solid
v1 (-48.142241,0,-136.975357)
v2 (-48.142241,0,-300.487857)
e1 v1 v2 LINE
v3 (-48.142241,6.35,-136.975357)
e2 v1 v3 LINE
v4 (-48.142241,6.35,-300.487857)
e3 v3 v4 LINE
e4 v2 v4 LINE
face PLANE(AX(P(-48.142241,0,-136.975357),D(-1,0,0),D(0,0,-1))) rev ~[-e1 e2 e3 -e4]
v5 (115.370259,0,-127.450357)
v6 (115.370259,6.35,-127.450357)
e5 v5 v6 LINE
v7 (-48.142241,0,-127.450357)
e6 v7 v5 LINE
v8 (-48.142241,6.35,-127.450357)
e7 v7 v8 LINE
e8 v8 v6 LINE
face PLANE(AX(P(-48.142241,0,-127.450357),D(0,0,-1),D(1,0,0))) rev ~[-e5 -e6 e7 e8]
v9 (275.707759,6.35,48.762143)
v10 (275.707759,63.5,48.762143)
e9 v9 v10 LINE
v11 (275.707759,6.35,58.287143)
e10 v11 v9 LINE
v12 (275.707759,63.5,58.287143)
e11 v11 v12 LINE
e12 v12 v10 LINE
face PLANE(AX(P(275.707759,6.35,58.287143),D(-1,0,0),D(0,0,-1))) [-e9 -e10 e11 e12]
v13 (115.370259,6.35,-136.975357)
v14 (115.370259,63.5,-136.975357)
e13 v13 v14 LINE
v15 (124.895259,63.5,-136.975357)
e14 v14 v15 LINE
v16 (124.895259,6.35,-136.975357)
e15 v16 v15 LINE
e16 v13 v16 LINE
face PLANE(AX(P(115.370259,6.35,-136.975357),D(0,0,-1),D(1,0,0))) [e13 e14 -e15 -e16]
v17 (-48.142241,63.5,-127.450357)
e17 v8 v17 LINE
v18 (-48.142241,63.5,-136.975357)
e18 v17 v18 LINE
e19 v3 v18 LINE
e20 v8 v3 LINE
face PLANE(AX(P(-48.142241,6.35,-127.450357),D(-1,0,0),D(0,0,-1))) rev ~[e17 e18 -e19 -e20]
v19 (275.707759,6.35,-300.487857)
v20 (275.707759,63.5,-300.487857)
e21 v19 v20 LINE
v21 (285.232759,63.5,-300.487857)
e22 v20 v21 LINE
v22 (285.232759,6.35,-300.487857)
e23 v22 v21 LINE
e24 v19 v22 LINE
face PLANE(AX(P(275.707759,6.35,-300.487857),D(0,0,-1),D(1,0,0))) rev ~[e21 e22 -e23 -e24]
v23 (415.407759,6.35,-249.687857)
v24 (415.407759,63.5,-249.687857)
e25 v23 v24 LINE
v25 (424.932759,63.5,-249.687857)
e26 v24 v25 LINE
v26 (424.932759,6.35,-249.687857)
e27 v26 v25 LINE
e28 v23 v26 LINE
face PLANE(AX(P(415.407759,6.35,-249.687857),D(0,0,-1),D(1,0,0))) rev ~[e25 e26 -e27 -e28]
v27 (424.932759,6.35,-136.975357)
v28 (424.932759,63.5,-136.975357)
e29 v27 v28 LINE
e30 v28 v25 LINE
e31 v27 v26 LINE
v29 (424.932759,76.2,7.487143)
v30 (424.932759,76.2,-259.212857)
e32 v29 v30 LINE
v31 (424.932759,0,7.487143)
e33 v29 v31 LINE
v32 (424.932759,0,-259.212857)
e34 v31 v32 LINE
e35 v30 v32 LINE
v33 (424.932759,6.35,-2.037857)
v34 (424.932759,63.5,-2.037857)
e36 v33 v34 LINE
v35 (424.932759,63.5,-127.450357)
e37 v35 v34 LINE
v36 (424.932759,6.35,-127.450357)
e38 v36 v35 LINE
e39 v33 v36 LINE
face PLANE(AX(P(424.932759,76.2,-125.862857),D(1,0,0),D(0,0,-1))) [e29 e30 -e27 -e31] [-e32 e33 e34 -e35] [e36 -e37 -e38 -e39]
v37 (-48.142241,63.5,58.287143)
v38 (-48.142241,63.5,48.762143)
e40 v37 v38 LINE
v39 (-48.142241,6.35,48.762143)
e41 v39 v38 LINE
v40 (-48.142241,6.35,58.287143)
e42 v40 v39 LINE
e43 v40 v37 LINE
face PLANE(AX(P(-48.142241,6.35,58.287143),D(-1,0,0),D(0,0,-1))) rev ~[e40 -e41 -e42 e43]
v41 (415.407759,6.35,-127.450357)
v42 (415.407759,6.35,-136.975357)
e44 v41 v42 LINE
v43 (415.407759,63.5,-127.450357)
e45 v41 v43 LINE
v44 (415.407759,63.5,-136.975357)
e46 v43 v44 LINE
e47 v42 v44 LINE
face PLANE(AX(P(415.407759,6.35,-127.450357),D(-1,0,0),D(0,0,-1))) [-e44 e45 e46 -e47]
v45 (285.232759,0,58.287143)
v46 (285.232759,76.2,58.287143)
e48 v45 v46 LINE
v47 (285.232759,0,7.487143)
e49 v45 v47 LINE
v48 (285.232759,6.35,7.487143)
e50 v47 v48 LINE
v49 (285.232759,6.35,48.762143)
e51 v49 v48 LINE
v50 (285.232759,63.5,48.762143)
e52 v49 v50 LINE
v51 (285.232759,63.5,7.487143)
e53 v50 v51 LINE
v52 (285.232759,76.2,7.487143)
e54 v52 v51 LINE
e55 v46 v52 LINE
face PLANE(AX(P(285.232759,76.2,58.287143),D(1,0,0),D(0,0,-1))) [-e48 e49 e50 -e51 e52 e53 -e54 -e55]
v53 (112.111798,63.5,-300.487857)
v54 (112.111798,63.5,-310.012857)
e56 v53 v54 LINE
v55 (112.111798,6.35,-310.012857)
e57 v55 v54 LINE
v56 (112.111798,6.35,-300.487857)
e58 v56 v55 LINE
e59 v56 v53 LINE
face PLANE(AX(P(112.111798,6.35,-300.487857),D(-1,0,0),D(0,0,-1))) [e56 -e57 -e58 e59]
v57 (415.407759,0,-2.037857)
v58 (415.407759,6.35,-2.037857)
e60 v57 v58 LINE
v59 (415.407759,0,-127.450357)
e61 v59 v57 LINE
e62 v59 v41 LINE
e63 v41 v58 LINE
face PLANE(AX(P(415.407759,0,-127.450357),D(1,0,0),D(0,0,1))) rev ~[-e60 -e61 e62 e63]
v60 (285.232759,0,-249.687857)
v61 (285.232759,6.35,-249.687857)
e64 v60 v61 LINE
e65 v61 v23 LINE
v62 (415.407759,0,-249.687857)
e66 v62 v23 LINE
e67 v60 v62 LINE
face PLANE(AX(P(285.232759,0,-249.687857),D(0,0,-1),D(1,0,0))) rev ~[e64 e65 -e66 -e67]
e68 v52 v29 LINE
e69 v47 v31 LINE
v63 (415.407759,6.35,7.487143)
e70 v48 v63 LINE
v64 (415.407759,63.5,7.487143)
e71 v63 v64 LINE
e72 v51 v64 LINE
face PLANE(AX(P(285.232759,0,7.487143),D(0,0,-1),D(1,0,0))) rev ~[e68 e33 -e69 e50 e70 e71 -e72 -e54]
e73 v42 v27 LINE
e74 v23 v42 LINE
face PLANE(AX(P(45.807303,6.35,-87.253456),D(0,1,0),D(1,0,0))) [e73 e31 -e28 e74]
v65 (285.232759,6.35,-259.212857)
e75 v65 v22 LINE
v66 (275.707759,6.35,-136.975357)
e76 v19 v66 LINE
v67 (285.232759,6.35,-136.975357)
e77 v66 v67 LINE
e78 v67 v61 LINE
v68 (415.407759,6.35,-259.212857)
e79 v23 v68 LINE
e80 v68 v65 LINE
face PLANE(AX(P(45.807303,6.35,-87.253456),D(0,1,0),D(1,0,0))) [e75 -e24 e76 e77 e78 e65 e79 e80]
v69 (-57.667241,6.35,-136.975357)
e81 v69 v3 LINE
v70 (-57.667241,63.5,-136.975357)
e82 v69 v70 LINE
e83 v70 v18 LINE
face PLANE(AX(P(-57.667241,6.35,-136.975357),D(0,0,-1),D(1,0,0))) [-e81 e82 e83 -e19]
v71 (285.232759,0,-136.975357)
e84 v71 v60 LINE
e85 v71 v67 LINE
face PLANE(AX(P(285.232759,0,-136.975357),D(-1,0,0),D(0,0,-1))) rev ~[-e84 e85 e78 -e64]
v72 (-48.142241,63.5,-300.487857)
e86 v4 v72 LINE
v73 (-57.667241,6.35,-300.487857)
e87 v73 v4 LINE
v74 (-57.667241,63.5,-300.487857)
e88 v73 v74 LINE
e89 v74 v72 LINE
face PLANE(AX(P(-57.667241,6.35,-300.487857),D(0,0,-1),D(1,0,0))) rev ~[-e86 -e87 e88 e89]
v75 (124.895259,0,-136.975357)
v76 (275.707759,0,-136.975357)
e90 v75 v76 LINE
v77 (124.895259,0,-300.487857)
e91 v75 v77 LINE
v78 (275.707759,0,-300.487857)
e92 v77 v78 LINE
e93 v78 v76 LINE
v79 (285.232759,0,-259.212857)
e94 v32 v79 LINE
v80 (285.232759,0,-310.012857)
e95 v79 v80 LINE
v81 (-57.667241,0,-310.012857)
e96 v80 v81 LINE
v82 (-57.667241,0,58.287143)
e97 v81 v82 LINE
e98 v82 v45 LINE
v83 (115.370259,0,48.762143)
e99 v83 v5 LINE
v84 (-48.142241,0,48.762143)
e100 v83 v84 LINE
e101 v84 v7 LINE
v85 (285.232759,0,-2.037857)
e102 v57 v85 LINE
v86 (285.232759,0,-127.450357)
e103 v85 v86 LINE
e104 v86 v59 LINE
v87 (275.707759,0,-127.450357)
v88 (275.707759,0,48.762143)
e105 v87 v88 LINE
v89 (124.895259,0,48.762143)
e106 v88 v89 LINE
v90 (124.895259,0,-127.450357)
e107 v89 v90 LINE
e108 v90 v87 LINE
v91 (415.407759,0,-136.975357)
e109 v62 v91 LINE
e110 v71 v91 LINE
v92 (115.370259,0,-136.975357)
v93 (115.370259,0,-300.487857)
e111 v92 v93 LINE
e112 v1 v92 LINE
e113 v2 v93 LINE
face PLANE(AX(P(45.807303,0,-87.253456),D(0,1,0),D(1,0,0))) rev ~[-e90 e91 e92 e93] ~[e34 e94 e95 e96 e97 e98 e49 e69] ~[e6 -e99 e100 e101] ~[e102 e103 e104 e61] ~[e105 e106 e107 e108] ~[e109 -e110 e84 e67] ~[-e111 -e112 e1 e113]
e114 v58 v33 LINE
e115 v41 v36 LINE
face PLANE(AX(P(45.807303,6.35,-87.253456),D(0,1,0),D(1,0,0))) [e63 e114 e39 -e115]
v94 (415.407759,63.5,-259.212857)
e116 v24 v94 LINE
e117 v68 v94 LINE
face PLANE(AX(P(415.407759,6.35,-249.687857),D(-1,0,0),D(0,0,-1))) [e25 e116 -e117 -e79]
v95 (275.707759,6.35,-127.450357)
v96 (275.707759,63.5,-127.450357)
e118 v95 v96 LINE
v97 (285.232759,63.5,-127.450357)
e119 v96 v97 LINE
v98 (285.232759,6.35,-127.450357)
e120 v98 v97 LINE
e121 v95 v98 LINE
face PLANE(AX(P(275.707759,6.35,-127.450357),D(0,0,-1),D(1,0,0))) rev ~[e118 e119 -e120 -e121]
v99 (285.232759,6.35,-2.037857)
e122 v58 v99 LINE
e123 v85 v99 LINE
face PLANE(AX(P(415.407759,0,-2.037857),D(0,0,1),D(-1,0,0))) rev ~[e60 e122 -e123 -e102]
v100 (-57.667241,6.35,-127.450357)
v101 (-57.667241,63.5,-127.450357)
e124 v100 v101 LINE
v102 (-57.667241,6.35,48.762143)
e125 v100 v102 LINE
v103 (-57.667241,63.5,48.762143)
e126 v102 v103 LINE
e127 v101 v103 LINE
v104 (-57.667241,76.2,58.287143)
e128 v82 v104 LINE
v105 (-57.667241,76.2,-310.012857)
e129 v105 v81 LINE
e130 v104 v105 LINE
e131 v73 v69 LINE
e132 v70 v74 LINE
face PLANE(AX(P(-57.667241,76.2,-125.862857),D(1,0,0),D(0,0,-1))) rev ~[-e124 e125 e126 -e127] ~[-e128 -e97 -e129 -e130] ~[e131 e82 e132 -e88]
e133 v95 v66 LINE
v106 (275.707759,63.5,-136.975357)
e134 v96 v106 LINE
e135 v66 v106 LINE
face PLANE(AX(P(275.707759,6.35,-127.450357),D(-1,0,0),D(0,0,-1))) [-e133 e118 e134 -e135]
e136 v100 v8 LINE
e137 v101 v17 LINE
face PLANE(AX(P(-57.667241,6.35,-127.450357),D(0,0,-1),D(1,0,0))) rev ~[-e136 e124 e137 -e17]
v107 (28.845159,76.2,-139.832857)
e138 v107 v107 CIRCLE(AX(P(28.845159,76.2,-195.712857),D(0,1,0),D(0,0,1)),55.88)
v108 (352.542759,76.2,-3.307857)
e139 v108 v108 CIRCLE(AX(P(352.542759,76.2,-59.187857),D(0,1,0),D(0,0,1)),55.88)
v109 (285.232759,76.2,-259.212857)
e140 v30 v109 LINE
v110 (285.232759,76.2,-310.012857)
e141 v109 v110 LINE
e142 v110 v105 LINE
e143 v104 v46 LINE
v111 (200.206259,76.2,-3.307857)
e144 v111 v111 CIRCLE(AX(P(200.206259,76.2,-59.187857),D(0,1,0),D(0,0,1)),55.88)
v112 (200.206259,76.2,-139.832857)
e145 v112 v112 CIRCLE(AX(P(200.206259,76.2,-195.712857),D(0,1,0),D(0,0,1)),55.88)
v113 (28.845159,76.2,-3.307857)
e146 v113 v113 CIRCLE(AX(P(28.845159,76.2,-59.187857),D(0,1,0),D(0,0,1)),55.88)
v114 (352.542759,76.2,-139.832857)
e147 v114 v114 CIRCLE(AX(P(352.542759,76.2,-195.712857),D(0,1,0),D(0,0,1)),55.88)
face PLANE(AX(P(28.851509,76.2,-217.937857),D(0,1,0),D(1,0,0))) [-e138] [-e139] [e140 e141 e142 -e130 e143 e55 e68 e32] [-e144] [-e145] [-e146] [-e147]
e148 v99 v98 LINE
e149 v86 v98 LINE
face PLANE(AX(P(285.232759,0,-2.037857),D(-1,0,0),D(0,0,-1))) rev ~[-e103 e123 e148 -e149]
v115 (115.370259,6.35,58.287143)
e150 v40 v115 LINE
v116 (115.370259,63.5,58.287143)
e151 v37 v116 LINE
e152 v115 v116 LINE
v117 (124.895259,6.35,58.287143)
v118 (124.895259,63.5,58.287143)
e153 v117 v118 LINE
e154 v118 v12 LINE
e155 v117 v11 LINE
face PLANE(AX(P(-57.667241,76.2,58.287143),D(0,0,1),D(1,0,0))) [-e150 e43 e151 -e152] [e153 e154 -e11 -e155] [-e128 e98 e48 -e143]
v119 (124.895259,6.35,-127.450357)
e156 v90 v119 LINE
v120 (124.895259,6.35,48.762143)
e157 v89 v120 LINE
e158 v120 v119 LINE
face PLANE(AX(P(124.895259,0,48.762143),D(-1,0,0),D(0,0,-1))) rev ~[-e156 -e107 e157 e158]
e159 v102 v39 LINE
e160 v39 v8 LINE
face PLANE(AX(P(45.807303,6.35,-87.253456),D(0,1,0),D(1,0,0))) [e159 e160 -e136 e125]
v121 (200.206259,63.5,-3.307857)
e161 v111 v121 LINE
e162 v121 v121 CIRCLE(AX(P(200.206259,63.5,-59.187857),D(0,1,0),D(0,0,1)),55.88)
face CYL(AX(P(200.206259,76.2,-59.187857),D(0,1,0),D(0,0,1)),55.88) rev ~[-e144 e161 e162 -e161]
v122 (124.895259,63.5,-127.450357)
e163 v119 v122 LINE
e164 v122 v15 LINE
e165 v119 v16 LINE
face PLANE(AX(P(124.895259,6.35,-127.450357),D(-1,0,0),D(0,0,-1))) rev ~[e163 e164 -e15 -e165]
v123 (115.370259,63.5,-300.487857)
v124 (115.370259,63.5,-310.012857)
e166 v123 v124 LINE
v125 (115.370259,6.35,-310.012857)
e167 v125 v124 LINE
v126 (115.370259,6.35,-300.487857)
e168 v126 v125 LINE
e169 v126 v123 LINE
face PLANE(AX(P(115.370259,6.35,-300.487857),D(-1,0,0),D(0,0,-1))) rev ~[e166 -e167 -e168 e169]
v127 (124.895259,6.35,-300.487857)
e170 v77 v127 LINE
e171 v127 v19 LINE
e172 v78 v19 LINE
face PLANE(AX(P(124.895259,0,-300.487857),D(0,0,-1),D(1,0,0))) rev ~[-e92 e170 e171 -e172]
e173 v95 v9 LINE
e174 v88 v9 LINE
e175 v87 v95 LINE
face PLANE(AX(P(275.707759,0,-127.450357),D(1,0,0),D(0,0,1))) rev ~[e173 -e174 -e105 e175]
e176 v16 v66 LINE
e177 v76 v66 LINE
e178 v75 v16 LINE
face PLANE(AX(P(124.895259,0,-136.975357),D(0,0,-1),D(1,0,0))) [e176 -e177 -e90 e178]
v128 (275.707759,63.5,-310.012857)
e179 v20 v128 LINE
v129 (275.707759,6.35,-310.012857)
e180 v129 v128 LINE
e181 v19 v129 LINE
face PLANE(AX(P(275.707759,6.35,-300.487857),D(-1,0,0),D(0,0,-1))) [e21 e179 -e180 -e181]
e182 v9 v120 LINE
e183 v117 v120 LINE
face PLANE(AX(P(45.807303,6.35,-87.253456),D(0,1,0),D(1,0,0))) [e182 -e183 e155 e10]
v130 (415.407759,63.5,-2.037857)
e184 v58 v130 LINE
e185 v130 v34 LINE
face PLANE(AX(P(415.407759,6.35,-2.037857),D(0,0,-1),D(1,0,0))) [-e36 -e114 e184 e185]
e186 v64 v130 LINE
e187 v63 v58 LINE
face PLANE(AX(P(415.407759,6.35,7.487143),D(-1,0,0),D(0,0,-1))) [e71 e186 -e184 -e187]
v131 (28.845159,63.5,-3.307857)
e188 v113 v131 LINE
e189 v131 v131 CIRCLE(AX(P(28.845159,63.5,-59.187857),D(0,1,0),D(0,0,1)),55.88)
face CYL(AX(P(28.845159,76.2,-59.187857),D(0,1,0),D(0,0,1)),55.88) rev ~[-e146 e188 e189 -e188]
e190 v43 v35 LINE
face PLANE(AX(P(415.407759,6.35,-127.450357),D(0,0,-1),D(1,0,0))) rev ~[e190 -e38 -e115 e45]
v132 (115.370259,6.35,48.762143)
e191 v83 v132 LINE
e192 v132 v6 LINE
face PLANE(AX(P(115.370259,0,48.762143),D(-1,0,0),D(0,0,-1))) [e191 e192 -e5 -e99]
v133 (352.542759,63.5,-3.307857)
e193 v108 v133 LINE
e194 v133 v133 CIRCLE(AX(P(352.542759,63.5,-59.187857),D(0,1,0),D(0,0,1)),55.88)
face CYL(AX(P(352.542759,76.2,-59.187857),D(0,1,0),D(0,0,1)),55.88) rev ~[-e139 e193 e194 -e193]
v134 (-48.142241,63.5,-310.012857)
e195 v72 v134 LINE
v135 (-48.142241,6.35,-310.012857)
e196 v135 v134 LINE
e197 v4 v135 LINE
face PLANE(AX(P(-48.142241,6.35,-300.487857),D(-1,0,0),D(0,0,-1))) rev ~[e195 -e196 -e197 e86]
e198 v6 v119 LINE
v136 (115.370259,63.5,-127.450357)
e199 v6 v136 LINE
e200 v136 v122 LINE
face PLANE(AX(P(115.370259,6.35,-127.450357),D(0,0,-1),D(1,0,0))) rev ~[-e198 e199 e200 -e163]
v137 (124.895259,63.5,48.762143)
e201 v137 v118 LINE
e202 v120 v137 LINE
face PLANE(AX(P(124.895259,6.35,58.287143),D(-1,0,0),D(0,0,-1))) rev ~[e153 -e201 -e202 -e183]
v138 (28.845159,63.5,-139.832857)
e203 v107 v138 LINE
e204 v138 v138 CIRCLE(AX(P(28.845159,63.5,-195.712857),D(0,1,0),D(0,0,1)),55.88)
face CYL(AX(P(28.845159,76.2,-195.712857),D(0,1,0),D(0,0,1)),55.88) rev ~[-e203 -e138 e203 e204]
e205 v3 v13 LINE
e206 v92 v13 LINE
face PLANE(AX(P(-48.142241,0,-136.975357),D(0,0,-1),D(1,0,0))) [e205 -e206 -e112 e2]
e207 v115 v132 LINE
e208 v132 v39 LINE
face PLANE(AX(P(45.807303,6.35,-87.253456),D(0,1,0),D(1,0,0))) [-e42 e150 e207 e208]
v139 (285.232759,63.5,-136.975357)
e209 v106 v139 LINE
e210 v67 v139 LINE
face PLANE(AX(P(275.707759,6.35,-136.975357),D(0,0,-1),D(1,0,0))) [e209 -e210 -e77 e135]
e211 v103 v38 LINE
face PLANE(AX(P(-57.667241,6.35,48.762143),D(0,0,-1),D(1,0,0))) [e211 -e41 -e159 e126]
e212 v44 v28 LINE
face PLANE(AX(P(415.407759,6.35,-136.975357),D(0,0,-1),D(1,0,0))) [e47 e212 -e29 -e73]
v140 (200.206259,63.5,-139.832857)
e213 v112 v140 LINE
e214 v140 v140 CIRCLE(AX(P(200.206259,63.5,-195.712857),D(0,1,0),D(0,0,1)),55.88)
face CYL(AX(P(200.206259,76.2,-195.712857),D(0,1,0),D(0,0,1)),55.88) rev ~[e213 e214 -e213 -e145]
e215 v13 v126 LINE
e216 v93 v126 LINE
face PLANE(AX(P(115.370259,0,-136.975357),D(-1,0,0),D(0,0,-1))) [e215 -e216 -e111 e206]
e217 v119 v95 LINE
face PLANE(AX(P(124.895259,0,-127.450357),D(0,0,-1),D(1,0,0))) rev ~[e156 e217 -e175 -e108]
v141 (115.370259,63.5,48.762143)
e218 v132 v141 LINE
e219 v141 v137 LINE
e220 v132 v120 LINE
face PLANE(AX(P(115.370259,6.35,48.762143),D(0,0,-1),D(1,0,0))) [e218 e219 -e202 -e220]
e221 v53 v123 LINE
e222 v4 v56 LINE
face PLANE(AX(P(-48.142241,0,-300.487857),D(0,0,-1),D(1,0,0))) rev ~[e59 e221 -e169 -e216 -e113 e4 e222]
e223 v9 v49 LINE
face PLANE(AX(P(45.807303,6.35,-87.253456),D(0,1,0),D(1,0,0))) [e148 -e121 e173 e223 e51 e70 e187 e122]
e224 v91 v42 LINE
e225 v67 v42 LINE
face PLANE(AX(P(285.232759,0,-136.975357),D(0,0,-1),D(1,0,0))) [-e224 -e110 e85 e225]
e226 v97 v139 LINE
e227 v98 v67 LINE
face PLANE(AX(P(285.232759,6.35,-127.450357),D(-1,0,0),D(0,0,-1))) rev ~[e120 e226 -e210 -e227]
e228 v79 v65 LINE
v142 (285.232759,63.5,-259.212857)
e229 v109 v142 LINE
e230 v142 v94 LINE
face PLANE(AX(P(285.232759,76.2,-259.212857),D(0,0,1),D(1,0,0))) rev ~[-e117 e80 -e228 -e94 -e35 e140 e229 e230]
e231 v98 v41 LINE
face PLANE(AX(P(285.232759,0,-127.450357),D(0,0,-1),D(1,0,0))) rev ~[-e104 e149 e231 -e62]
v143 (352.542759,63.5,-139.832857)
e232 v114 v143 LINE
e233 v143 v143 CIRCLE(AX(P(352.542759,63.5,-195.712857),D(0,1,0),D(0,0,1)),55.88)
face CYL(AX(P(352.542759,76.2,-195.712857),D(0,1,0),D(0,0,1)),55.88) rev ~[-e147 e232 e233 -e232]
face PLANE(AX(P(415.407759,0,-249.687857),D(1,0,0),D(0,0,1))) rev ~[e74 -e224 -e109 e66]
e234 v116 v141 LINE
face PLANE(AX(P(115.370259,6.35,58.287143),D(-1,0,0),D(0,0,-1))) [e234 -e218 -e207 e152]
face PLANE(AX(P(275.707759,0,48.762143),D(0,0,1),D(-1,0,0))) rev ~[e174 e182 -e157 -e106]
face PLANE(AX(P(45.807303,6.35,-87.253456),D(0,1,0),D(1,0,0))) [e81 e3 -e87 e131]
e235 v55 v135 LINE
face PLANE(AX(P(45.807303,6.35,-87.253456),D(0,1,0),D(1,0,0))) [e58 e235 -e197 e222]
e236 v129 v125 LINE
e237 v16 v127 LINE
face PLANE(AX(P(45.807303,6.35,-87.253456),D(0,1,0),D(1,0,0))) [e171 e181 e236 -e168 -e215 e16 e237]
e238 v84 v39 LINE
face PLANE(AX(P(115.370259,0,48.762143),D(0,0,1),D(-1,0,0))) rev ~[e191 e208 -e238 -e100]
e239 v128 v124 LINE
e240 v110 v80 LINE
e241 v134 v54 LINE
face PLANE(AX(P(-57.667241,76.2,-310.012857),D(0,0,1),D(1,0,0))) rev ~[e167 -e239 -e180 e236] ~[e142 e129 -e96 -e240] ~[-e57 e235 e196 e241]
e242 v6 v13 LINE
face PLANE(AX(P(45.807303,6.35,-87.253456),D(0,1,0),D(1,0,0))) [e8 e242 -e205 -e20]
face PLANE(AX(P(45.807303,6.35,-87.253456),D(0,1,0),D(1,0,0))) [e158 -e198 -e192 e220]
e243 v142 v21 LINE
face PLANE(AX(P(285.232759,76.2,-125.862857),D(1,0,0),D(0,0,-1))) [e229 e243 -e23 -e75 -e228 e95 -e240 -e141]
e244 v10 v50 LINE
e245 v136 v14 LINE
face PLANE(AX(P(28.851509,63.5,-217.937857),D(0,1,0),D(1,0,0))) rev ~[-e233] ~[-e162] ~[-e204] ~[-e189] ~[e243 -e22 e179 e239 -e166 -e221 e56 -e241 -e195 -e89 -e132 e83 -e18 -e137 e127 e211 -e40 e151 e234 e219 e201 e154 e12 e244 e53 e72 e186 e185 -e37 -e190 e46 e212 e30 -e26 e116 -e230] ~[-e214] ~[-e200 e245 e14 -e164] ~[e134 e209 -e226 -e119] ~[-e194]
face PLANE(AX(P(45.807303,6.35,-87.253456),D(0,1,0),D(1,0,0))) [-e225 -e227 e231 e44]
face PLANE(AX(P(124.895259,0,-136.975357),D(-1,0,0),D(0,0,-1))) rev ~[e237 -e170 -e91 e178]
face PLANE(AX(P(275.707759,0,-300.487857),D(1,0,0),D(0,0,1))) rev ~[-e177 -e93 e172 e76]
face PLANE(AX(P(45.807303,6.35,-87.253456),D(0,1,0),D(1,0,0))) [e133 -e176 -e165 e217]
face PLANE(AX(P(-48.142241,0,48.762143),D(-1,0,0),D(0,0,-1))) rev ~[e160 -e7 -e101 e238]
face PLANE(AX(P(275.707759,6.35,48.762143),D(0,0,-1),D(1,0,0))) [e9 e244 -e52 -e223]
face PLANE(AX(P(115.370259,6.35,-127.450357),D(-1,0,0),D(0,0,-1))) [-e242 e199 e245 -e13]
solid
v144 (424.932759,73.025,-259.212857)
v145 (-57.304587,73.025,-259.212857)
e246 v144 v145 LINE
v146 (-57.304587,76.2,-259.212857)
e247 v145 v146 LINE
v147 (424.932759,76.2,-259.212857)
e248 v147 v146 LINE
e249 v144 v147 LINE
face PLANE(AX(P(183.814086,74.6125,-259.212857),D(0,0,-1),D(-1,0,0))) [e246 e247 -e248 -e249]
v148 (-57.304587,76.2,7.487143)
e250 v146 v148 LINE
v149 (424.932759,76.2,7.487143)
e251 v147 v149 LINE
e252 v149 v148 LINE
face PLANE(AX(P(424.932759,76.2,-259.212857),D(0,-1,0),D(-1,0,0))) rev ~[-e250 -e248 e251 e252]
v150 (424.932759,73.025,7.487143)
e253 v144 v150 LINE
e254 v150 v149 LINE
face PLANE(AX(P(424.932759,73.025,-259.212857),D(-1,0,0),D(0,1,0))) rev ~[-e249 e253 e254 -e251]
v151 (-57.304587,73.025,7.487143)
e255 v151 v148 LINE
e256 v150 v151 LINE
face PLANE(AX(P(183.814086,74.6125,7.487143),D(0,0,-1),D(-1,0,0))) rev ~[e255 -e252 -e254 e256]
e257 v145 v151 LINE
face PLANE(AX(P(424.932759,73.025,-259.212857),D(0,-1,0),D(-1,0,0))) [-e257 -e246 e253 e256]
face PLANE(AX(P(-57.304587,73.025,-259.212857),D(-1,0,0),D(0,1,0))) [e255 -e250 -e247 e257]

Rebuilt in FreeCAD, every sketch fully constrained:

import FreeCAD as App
import Part
import Sketcher

V = App.Vector
Q = App.Units.Quantity

doc = App.newDocument("Part")
body = doc.addObject("PartDesign::Body", "Body")

sketch1 = doc.addObject("Sketcher::SketchObject", "Sketch")
body.addObject(sketch1)
sketch1.AttachmentSupport = (doc.XZ_Plane, [""])
sketch1.MapMode = "FlatFace"
sketch1.addGeometry(Part.LineSegment(V(285, -310, 0), V(-58, -310, 0)), False)
sketch1.addGeometry(Part.LineSegment(V(-58, -310, 0), V(-58, 58, 0)), False)
sketch1.addGeometry(Part.LineSegment(V(-58, 58, 0), V(285, 58, 0)), False)
sketch1.addGeometry(Part.LineSegment(V(285, 58, 0), V(285, 7, 0)), False)
sketch1.addGeometry(Part.LineSegment(V(285, 7, 0), V(425, 7, 0)), False)
sketch1.addGeometry(Part.LineSegment(V(425, 7, 0), V(425, -259, 0)), False)
sketch1.addGeometry(Part.LineSegment(V(425, -259, 0), V(285, -259, 0)), False)
sketch1.addGeometry(Part.LineSegment(V(285, -259, 0), V(285, -310, 0)), False)
sketch1.addGeometry(Part.LineSegment(V(125, -127, 0), V(276, -127, 0)), False)
sketch1.addGeometry(Part.LineSegment(V(276, -127, 0), V(276, 49, 0)), False)
sketch1.addGeometry(Part.LineSegment(V(276, 49, 0), V(125, 49, 0)), False)
sketch1.addGeometry(Part.LineSegment(V(125, 49, 0), V(125, -127, 0)), False)
sketch1.addGeometry(Part.LineSegment(V(285, -2, 0), V(285, -127, 0)), False)
sketch1.addGeometry(Part.LineSegment(V(285, -127, 0), V(415, -127, 0)), False)
sketch1.addGeometry(Part.LineSegment(V(415, -127, 0), V(415, -2, 0)), False)
sketch1.addGeometry(Part.LineSegment(V(415, -2, 0), V(285, -2, 0)), False)
sketch1.addGeometry(Part.LineSegment(V(415, -137, 0), V(285, -137, 0)), False)
sketch1.addGeometry(Part.LineSegment(V(285, -137, 0), V(285, -250, 0)), False)
sketch1.addGeometry(Part.LineSegment(V(285, -250, 0), V(415, -250, 0)), False)
sketch1.addGeometry(Part.LineSegment(V(415, -250, 0), V(415, -137, 0)), False)
sketch1.addGeometry(Part.LineSegment(V(115, -127, 0), V(115, 49, 0)), False)
sketch1.addGeometry(Part.LineSegment(V(115, 49, 0), V(-48, 49, 0)), False)
sketch1.addGeometry(Part.LineSegment(V(-48, 49, 0), V(-48, -127, 0)), False)
sketch1.addGeometry(Part.LineSegment(V(-48, -127, 0), V(115, -127, 0)), False)
sketch1.addGeometry(Part.LineSegment(V(115, -300, 0), V(115, -137, 0)), False)
sketch1.addGeometry(Part.LineSegment(V(115, -137, 0), V(-48, -137, 0)), False)
sketch1.addGeometry(Part.LineSegment(V(-48, -137, 0), V(-48, -300, 0)), False)
sketch1.addGeometry(Part.LineSegment(V(-48, -300, 0), V(115, -300, 0)), False)
sketch1.addGeometry(Part.LineSegment(V(276, -137, 0), V(125, -137, 0)), False)
sketch1.addGeometry(Part.LineSegment(V(125, -137, 0), V(125, -300, 0)), False)
sketch1.addGeometry(Part.LineSegment(V(125, -300, 0), V(276, -300, 0)), False)
sketch1.addGeometry(Part.LineSegment(V(276, -300, 0), V(276, -137, 0)), False)
sketch1.addConstraint(Sketcher.Constraint("Coincident", 0, 2, 1, 1))
sketch1.addConstraint(Sketcher.Constraint("Coincident", 1, 2, 2, 1))
sketch1.addConstraint(Sketcher.Constraint("Coincident", 2, 2, 3, 1))
sketch1.addConstraint(Sketcher.Constraint("Coincident", 3, 2, 4, 1))
sketch1.addConstraint(Sketcher.Constraint("Coincident", 4, 2, 5, 1))
sketch1.addConstraint(Sketcher.Constraint("Coincident", 5, 2, 6, 1))
sketch1.addConstraint(Sketcher.Constraint("Coincident", 6, 2, 7, 1))
sketch1.addConstraint(Sketcher.Constraint("Coincident", 7, 2, 0, 1))
sketch1.addConstraint(Sketcher.Constraint("Coincident", 8, 2, 9, 1))
sketch1.addConstraint(Sketcher.Constraint("Coincident", 9, 2, 10, 1))
sketch1.addConstraint(Sketcher.Constraint("Coincident", 10, 2, 11, 1))
sketch1.addConstraint(Sketcher.Constraint("Coincident", 11, 2, 8, 1))
sketch1.addConstraint(Sketcher.Constraint("Coincident", 12, 2, 13, 1))
sketch1.addConstraint(Sketcher.Constraint("Coincident", 13, 2, 14, 1))
sketch1.addConstraint(Sketcher.Constraint("Coincident", 14, 2, 15, 1))
sketch1.addConstraint(Sketcher.Constraint("Coincident", 15, 2, 12, 1))
sketch1.addConstraint(Sketcher.Constraint("Coincident", 16, 2, 17, 1))
sketch1.addConstraint(Sketcher.Constraint("Coincident", 17, 2, 18, 1))
sketch1.addConstraint(Sketcher.Constraint("Coincident", 18, 2, 19, 1))
sketch1.addConstraint(Sketcher.Constraint("Coincident", 19, 2, 16, 1))
sketch1.addConstraint(Sketcher.Constraint("Coincident", 20, 2, 21, 1))
sketch1.addConstraint(Sketcher.Constraint("Coincident", 21, 2, 22, 1))
sketch1.addConstraint(Sketcher.Constraint("Coincident", 22, 2, 23, 1))
sketch1.addConstraint(Sketcher.Constraint("Coincident", 23, 2, 20, 1))
sketch1.addConstraint(Sketcher.Constraint("Coincident", 24, 2, 25, 1))
sketch1.addConstraint(Sketcher.Constraint("Coincident", 25, 2, 26, 1))
sketch1.addConstraint(Sketcher.Constraint("Coincident", 26, 2, 27, 1))
sketch1.addConstraint(Sketcher.Constraint("Coincident", 27, 2, 24, 1))
sketch1.addConstraint(Sketcher.Constraint("Coincident", 28, 2, 29, 1))
sketch1.addConstraint(Sketcher.Constraint("Coincident", 29, 2, 30, 1))
sketch1.addConstraint(Sketcher.Constraint("Coincident", 30, 2, 31, 1))
sketch1.addConstraint(Sketcher.Constraint("Coincident", 31, 2, 28, 1))
sketch1.addConstraint(Sketcher.Constraint("Horizontal", 0))
sketch1.addConstraint(Sketcher.Constraint("Vertical", 1))
sketch1.addConstraint(Sketcher.Constraint("Horizontal", 2))
sketch1.addConstraint(Sketcher.Constraint("Vertical", 3))
sketch1.addConstraint(Sketcher.Constraint("Horizontal", 4))
sketch1.addConstraint(Sketcher.Constraint("Vertical", 5))
sketch1.addConstraint(Sketcher.Constraint("Horizontal", 6))
sketch1.addConstraint(Sketcher.Constraint("Vertical", 7))
sketch1.addConstraint(Sketcher.Constraint("Horizontal", 8))
sketch1.addConstraint(Sketcher.Constraint("Vertical", 9))
sketch1.addConstraint(Sketcher.Constraint("Horizontal", 10))
sketch1.addConstraint(Sketcher.Constraint("Vertical", 11))
sketch1.addConstraint(Sketcher.Constraint("Vertical", 12))
sketch1.addConstraint(Sketcher.Constraint("Horizontal", 13))
sketch1.addConstraint(Sketcher.Constraint("Vertical", 14))
sketch1.addConstraint(Sketcher.Constraint("Horizontal", 15))
sketch1.addConstraint(Sketcher.Constraint("Horizontal", 16))
sketch1.addConstraint(Sketcher.Constraint("Vertical", 17))
sketch1.addConstraint(Sketcher.Constraint("Horizontal", 18))
sketch1.addConstraint(Sketcher.Constraint("Vertical", 19))
sketch1.addConstraint(Sketcher.Constraint("Vertical", 20))
sketch1.addConstraint(Sketcher.Constraint("Horizontal", 21))
sketch1.addConstraint(Sketcher.Constraint("Vertical", 22))
sketch1.addConstraint(Sketcher.Constraint("Horizontal", 23))
sketch1.addConstraint(Sketcher.Constraint("Vertical", 24))
sketch1.addConstraint(Sketcher.Constraint("Horizontal", 25))
sketch1.addConstraint(Sketcher.Constraint("Vertical", 26))
sketch1.addConstraint(Sketcher.Constraint("Horizontal", 27))
sketch1.addConstraint(Sketcher.Constraint("Horizontal", 28))
sketch1.addConstraint(Sketcher.Constraint("Vertical", 29))
sketch1.addConstraint(Sketcher.Constraint("Horizontal", 30))
sketch1.addConstraint(Sketcher.Constraint("Vertical", 31))
sketch1.addConstraint(Sketcher.Constraint("Horizontal", 11, 2, 12, 2))
sketch1.addConstraint(Sketcher.Constraint("Horizontal", 10, 2, 20, 2))
sketch1.addConstraint(Sketcher.Constraint("Horizontal", 13, 2, 22, 2))
sketch1.addConstraint(Sketcher.Constraint("Horizontal", 19, 2, 24, 2))
sketch1.addConstraint(Sketcher.Constraint("Horizontal", 25, 2, 28, 2))
sketch1.addConstraint(Sketcher.Constraint("Horizontal", 27, 2, 29, 2))
sketch1.addConstraint(Sketcher.Constraint("Vertical", 3, 2, 6, 2))
sketch1.addConstraint(Sketcher.Constraint("Vertical", 7, 2, 12, 2))
sketch1.addConstraint(Sketcher.Constraint("Vertical", 15, 2, 16, 2))
sketch1.addConstraint(Sketcher.Constraint("Vertical", 14, 2, 18, 2))
sketch1.addConstraint(Sketcher.Constraint("Vertical", 23, 2, 24, 2))
sketch1.addConstraint(Sketcher.Constraint("Vertical", 22, 2, 25, 2))
sketch1.addConstraint(Sketcher.Constraint("Vertical", 11, 2, 28, 2))
sketch1.addConstraint(Sketcher.Constraint("Vertical", 9, 2, 30, 2))
sketch1.addConstraint(Sketcher.Constraint("Equal", 3, 7))
sketch1.addConstraint(Sketcher.Constraint("Equal", 27, 24))
sketch1.addConstraint(Sketcher.Constraint("DistanceY", 3, 2, 3, 1, Q("2 in")))
sketch1.addConstraint(Sketcher.Constraint("DistanceX", 0, 2, 0, 1, Q("13.5 in")))
sketch1.addConstraint(Sketcher.Constraint("DistanceX", 4, 1, 4, 2, Q("5.5 in")))
sketch1.addConstraint(Sketcher.Constraint("DistanceY", 1, 1, 1, 2, Q("14.5 in")))
sketch1.addConstraint(Sketcher.Constraint("DistanceY", 14, 2, 9, 2, Q("2 in")))
sketch1.addConstraint(Sketcher.Constraint("DistanceY", 30, 2, 17, 2, Q("2 in")))
sketch1.addConstraint(Sketcher.Constraint("DistanceX", 8, 2, 13, 2, Q("5.5 in")))
sketch1.addConstraint(Sketcher.Constraint("DistanceX", 8, 1, 8, 2, Q("5.9375 in")))
sketch1.addConstraint(Sketcher.Constraint("DistanceX", 13, 1, 13, 2, Q("5.125 in")))
sketch1.addConstraint(Sketcher.Constraint("DistanceX", 21, 2, 21, 1, Q("6.4375 in")))
sketch1.addConstraint(Sketcher.Constraint("DistanceY", 9, 1, 9, 2, Q("6.9375 in")))
sketch1.addConstraint(Sketcher.Constraint("DistanceX", 21, 2, 9, 2, Q("12.75 in")))
sketch1.addConstraint(Sketcher.Constraint("DistanceY", 6, 2, 8, 2, Q("5.1875 in")))
sketch1.addConstraint(Sketcher.Constraint("DistanceY", 16, 2, 12, 2, Q("0.375 in")))
sketch1.addConstraint(Sketcher.Constraint("DistanceX", 0, 2, -1, 1, 57.667241))
sketch1.addConstraint(Sketcher.Constraint("DistanceY", 0, 2, -1, 1, 310.012857))
pad1 = doc.addObject("PartDesign::Pad", "Pad")
body.addObject(pad1)
pad1.Profile = sketch1
pad1.Length = Q("0.25 in")
pad1.Reversed = True

sketch2 = doc.addObject("Sketcher::SketchObject", "Sketch001")
body.addObject(sketch2)
sketch2.AttachmentSupport = (doc.XZ_Plane, [""])
sketch2.MapMode = "FlatFace"
sketch2.AttachmentOffset = App.Placement(V(0, 0, -0.25 * 25.4), App.Rotation())
sketch2.addGeometry(Part.LineSegment(V(-57.7, -310, 0), V(-57.7, -300.5, 0)), False)
sketch2.addGeometry(Part.LineSegment(V(-57.7, -300.5, 0), V(-48.1, -300.5, 0)), False)
sketch2.addGeometry(Part.LineSegment(V(-48.1, -300.5, 0), V(-48.1, -310, 0)), False)
sketch2.addGeometry(Part.LineSegment(V(-48.1, -310, 0), V(-57.7, -310, 0)), False)
sketch2.addGeometry(Part.LineSegment(V(112.1, -310, 0), V(112.1, -300.5, 0)), False)
sketch2.addGeometry(Part.LineSegment(V(112.1, -300.5, 0), V(115.4, -300.5, 0)), False)
sketch2.addGeometry(Part.LineSegment(V(115.4, -300.5, 0), V(115.4, -310, 0)), False)
sketch2.addGeometry(Part.LineSegment(V(115.4, -310, 0), V(112.1, -310, 0)), False)
sketch2.addGeometry(Part.LineSegment(V(115.4, -137, 0), V(115.4, -127.5, 0)), False)
sketch2.addGeometry(Part.LineSegment(V(115.4, -127.5, 0), V(124.9, -127.5, 0)), False)
sketch2.addGeometry(Part.LineSegment(V(124.9, -127.5, 0), V(124.9, -137, 0)), False)
sketch2.addGeometry(Part.LineSegment(V(124.9, -137, 0), V(115.4, -137, 0)), False)
sketch2.addGeometry(Part.LineSegment(V(-57.7, -137, 0), V(-57.7, -127.5, 0)), False)
sketch2.addGeometry(Part.LineSegment(V(-57.7, -127.5, 0), V(-48.1, -127.5, 0)), False)
sketch2.addGeometry(Part.LineSegment(V(-48.1, -127.5, 0), V(-48.1, -137, 0)), False)
sketch2.addGeometry(Part.LineSegment(V(-48.1, -137, 0), V(-57.7, -137, 0)), False)
sketch2.addGeometry(Part.LineSegment(V(-57.7, 48.8, 0), V(-57.7, 58.3, 0)), False)
sketch2.addGeometry(Part.LineSegment(V(-57.7, 58.3, 0), V(-48.1, 58.3, 0)), False)
sketch2.addGeometry(Part.LineSegment(V(-48.1, 58.3, 0), V(-48.1, 48.8, 0)), False)
sketch2.addGeometry(Part.LineSegment(V(-48.1, 48.8, 0), V(-57.7, 48.8, 0)), False)
sketch2.addGeometry(Part.LineSegment(V(115.4, 48.8, 0), V(115.4, 58.3, 0)), False)
sketch2.addGeometry(Part.LineSegment(V(115.4, 58.3, 0), V(124.9, 58.3, 0)), False)
sketch2.addGeometry(Part.LineSegment(V(124.9, 58.3, 0), V(124.9, 48.8, 0)), False)
sketch2.addGeometry(Part.LineSegment(V(124.9, 48.8, 0), V(115.4, 48.8, 0)), False)
sketch2.addGeometry(Part.LineSegment(V(275.7, 48.8, 0), V(275.7, 58.3, 0)), False)
sketch2.addGeometry(Part.LineSegment(V(275.7, 58.3, 0), V(285.2, 58.3, 0)), False)
sketch2.addGeometry(Part.LineSegment(V(285.2, 58.3, 0), V(285.2, 48.8, 0)), False)
sketch2.addGeometry(Part.LineSegment(V(285.2, 48.8, 0), V(275.7, 48.8, 0)), False)
sketch2.addGeometry(Part.LineSegment(V(275.7, -137, 0), V(275.7, -127.5, 0)), False)
sketch2.addGeometry(Part.LineSegment(V(275.7, -127.5, 0), V(285.2, -127.5, 0)), False)
sketch2.addGeometry(Part.LineSegment(V(285.2, -127.5, 0), V(285.2, -137, 0)), False)
sketch2.addGeometry(Part.LineSegment(V(285.2, -137, 0), V(275.7, -137, 0)), False)
sketch2.addGeometry(Part.LineSegment(V(275.7, -310, 0), V(275.7, -300.5, 0)), False)
sketch2.addGeometry(Part.LineSegment(V(275.7, -300.5, 0), V(285.2, -300.5, 0)), False)
sketch2.addGeometry(Part.LineSegment(V(285.2, -300.5, 0), V(285.2, -310, 0)), False)
sketch2.addGeometry(Part.LineSegment(V(285.2, -310, 0), V(275.7, -310, 0)), False)
sketch2.addGeometry(Part.LineSegment(V(415.4, -259.2, 0), V(415.4, -249.7, 0)), False)
sketch2.addGeometry(Part.LineSegment(V(415.4, -249.7, 0), V(424.9, -249.7, 0)), False)
sketch2.addGeometry(Part.LineSegment(V(424.9, -249.7, 0), V(424.9, -259.2, 0)), False)
sketch2.addGeometry(Part.LineSegment(V(424.9, -259.2, 0), V(415.4, -259.2, 0)), False)
sketch2.addGeometry(Part.LineSegment(V(415.4, -2, 0), V(415.4, 7.5, 0)), False)
sketch2.addGeometry(Part.LineSegment(V(415.4, 7.5, 0), V(424.9, 7.5, 0)), False)
sketch2.addGeometry(Part.LineSegment(V(424.9, 7.5, 0), V(424.9, -2, 0)), False)
sketch2.addGeometry(Part.LineSegment(V(424.9, -2, 0), V(415.4, -2, 0)), False)
sketch2.addGeometry(Part.LineSegment(V(415.4, -137, 0), V(415.4, -127.5, 0)), False)
sketch2.addGeometry(Part.LineSegment(V(415.4, -127.5, 0), V(424.9, -127.5, 0)), False)
sketch2.addGeometry(Part.LineSegment(V(424.9, -127.5, 0), V(424.9, -137, 0)), False)
sketch2.addGeometry(Part.LineSegment(V(424.9, -137, 0), V(415.4, -137, 0)), False)
sketch2.addConstraint(Sketcher.Constraint("Coincident", 0, 2, 1, 1))
sketch2.addConstraint(Sketcher.Constraint("Coincident", 1, 2, 2, 1))
sketch2.addConstraint(Sketcher.Constraint("Coincident", 2, 2, 3, 1))
sketch2.addConstraint(Sketcher.Constraint("Coincident", 3, 2, 0, 1))
sketch2.addConstraint(Sketcher.Constraint("Coincident", 4, 2, 5, 1))
sketch2.addConstraint(Sketcher.Constraint("Coincident", 5, 2, 6, 1))
sketch2.addConstraint(Sketcher.Constraint("Coincident", 6, 2, 7, 1))
sketch2.addConstraint(Sketcher.Constraint("Coincident", 7, 2, 4, 1))
sketch2.addConstraint(Sketcher.Constraint("Coincident", 8, 2, 9, 1))
sketch2.addConstraint(Sketcher.Constraint("Coincident", 9, 2, 10, 1))
sketch2.addConstraint(Sketcher.Constraint("Coincident", 10, 2, 11, 1))
sketch2.addConstraint(Sketcher.Constraint("Coincident", 11, 2, 8, 1))
sketch2.addConstraint(Sketcher.Constraint("Coincident", 12, 2, 13, 1))
sketch2.addConstraint(Sketcher.Constraint("Coincident", 13, 2, 14, 1))
sketch2.addConstraint(Sketcher.Constraint("Coincident", 14, 2, 15, 1))
sketch2.addConstraint(Sketcher.Constraint("Coincident", 15, 2, 12, 1))
sketch2.addConstraint(Sketcher.Constraint("Coincident", 16, 2, 17, 1))
sketch2.addConstraint(Sketcher.Constraint("Coincident", 17, 2, 18, 1))
sketch2.addConstraint(Sketcher.Constraint("Coincident", 18, 2, 19, 1))
sketch2.addConstraint(Sketcher.Constraint("Coincident", 19, 2, 16, 1))
sketch2.addConstraint(Sketcher.Constraint("Coincident", 20, 2, 21, 1))
sketch2.addConstraint(Sketcher.Constraint("Coincident", 21, 2, 22, 1))
sketch2.addConstraint(Sketcher.Constraint("Coincident", 22, 2, 23, 1))
sketch2.addConstraint(Sketcher.Constraint("Coincident", 23, 2, 20, 1))
sketch2.addConstraint(Sketcher.Constraint("Coincident", 24, 2, 25, 1))
sketch2.addConstraint(Sketcher.Constraint("Coincident", 25, 2, 26, 1))
sketch2.addConstraint(Sketcher.Constraint("Coincident", 26, 2, 27, 1))
sketch2.addConstraint(Sketcher.Constraint("Coincident", 27, 2, 24, 1))
sketch2.addConstraint(Sketcher.Constraint("Coincident", 28, 2, 29, 1))
sketch2.addConstraint(Sketcher.Constraint("Coincident", 29, 2, 30, 1))
sketch2.addConstraint(Sketcher.Constraint("Coincident", 30, 2, 31, 1))
sketch2.addConstraint(Sketcher.Constraint("Coincident", 31, 2, 28, 1))
sketch2.addConstraint(Sketcher.Constraint("Coincident", 32, 2, 33, 1))
sketch2.addConstraint(Sketcher.Constraint("Coincident", 33, 2, 34, 1))
sketch2.addConstraint(Sketcher.Constraint("Coincident", 34, 2, 35, 1))
sketch2.addConstraint(Sketcher.Constraint("Coincident", 35, 2, 32, 1))
sketch2.addConstraint(Sketcher.Constraint("Coincident", 36, 2, 37, 1))
sketch2.addConstraint(Sketcher.Constraint("Coincident", 37, 2, 38, 1))
sketch2.addConstraint(Sketcher.Constraint("Coincident", 38, 2, 39, 1))
sketch2.addConstraint(Sketcher.Constraint("Coincident", 39, 2, 36, 1))
sketch2.addConstraint(Sketcher.Constraint("Coincident", 40, 2, 41, 1))
sketch2.addConstraint(Sketcher.Constraint("Coincident", 41, 2, 42, 1))
sketch2.addConstraint(Sketcher.Constraint("Coincident", 42, 2, 43, 1))
sketch2.addConstraint(Sketcher.Constraint("Coincident", 43, 2, 40, 1))
sketch2.addConstraint(Sketcher.Constraint("Coincident", 44, 2, 45, 1))
sketch2.addConstraint(Sketcher.Constraint("Coincident", 45, 2, 46, 1))
sketch2.addConstraint(Sketcher.Constraint("Coincident", 46, 2, 47, 1))
sketch2.addConstraint(Sketcher.Constraint("Coincident", 47, 2, 44, 1))
sketch2.addConstraint(Sketcher.Constraint("Vertical", 0))
sketch2.addConstraint(Sketcher.Constraint("Horizontal", 1))
sketch2.addConstraint(Sketcher.Constraint("Vertical", 2))
sketch2.addConstraint(Sketcher.Constraint("Horizontal", 3))
sketch2.addConstraint(Sketcher.Constraint("Vertical", 4))
sketch2.addConstraint(Sketcher.Constraint("Horizontal", 5))
sketch2.addConstraint(Sketcher.Constraint("Vertical", 6))
sketch2.addConstraint(Sketcher.Constraint("Horizontal", 7))
sketch2.addConstraint(Sketcher.Constraint("Vertical", 8))
sketch2.addConstraint(Sketcher.Constraint("Horizontal", 9))
sketch2.addConstraint(Sketcher.Constraint("Vertical", 10))
sketch2.addConstraint(Sketcher.Constraint("Horizontal", 11))
sketch2.addConstraint(Sketcher.Constraint("Vertical", 12))
sketch2.addConstraint(Sketcher.Constraint("Horizontal", 13))
sketch2.addConstraint(Sketcher.Constraint("Vertical", 14))
sketch2.addConstraint(Sketcher.Constraint("Horizontal", 15))
sketch2.addConstraint(Sketcher.Constraint("Vertical", 16))
sketch2.addConstraint(Sketcher.Constraint("Horizontal", 17))
sketch2.addConstraint(Sketcher.Constraint("Vertical", 18))
sketch2.addConstraint(Sketcher.Constraint("Horizontal", 19))
sketch2.addConstraint(Sketcher.Constraint("Vertical", 20))
sketch2.addConstraint(Sketcher.Constraint("Horizontal", 21))
sketch2.addConstraint(Sketcher.Constraint("Vertical", 22))
sketch2.addConstraint(Sketcher.Constraint("Horizontal", 23))
sketch2.addConstraint(Sketcher.Constraint("Vertical", 24))
sketch2.addConstraint(Sketcher.Constraint("Horizontal", 25))
sketch2.addConstraint(Sketcher.Constraint("Vertical", 26))
sketch2.addConstraint(Sketcher.Constraint("Horizontal", 27))
sketch2.addConstraint(Sketcher.Constraint("Vertical", 28))
sketch2.addConstraint(Sketcher.Constraint("Horizontal", 29))
sketch2.addConstraint(Sketcher.Constraint("Vertical", 30))
sketch2.addConstraint(Sketcher.Constraint("Horizontal", 31))
sketch2.addConstraint(Sketcher.Constraint("Vertical", 32))
sketch2.addConstraint(Sketcher.Constraint("Horizontal", 33))
sketch2.addConstraint(Sketcher.Constraint("Vertical", 34))
sketch2.addConstraint(Sketcher.Constraint("Horizontal", 35))
sketch2.addConstraint(Sketcher.Constraint("Vertical", 36))
sketch2.addConstraint(Sketcher.Constraint("Horizontal", 37))
sketch2.addConstraint(Sketcher.Constraint("Vertical", 38))
sketch2.addConstraint(Sketcher.Constraint("Horizontal", 39))
sketch2.addConstraint(Sketcher.Constraint("Vertical", 40))
sketch2.addConstraint(Sketcher.Constraint("Horizontal", 41))
sketch2.addConstraint(Sketcher.Constraint("Vertical", 42))
sketch2.addConstraint(Sketcher.Constraint("Horizontal", 43))
sketch2.addConstraint(Sketcher.Constraint("Vertical", 44))
sketch2.addConstraint(Sketcher.Constraint("Horizontal", 45))
sketch2.addConstraint(Sketcher.Constraint("Vertical", 46))
sketch2.addConstraint(Sketcher.Constraint("Horizontal", 47))
sketch2.addConstraint(Sketcher.Constraint("Horizontal", 1, 2, 4, 2))
sketch2.addConstraint(Sketcher.Constraint("Horizontal", 3, 2, 6, 2))
sketch2.addConstraint(Sketcher.Constraint("Horizontal", 9, 2, 12, 2))
sketch2.addConstraint(Sketcher.Constraint("Horizontal", 11, 2, 14, 2))
sketch2.addConstraint(Sketcher.Constraint("Horizontal", 17, 2, 20, 2))
sketch2.addConstraint(Sketcher.Constraint("Horizontal", 19, 2, 22, 2))
sketch2.addConstraint(Sketcher.Constraint("Horizontal", 21, 2, 24, 2))
sketch2.addConstraint(Sketcher.Constraint("Horizontal", 23, 2, 26, 2))
sketch2.addConstraint(Sketcher.Constraint("Horizontal", 13, 2, 28, 2))
sketch2.addConstraint(Sketcher.Constraint("Horizontal", 15, 2, 30, 2))
sketch2.addConstraint(Sketcher.Constraint("Horizontal", 5, 2, 32, 2))
sketch2.addConstraint(Sketcher.Constraint("Horizontal", 7, 2, 34, 2))
sketch2.addConstraint(Sketcher.Constraint("Horizontal", 29, 2, 44, 2))
sketch2.addConstraint(Sketcher.Constraint("Horizontal", 31, 2, 46, 2))
sketch2.addConstraint(Sketcher.Constraint("Vertical", 6, 2, 8, 2))
sketch2.addConstraint(Sketcher.Constraint("Vertical", 3, 2, 12, 2))
sketch2.addConstraint(Sketcher.Constraint("Vertical", 2, 2, 13, 2))
sketch2.addConstraint(Sketcher.Constraint("Vertical", 15, 2, 16, 2))
sketch2.addConstraint(Sketcher.Constraint("Vertical", 14, 2, 17, 2))
sketch2.addConstraint(Sketcher.Constraint("Vertical", 11, 2, 20, 2))
sketch2.addConstraint(Sketcher.Constraint("Vertical", 10, 2, 21, 2))
sketch2.addConstraint(Sketcher.Constraint("Vertical", 27, 2, 28, 2))
sketch2.addConstraint(Sketcher.Constraint("Vertical", 26, 2, 29, 2))
sketch2.addConstraint(Sketcher.Constraint("Vertical", 31, 2, 32, 2))
sketch2.addConstraint(Sketcher.Constraint("Vertical", 30, 2, 33, 2))
sketch2.addConstraint(Sketcher.Constraint("Vertical", 39, 2, 40, 2))
sketch2.addConstraint(Sketcher.Constraint("Vertical", 38, 2, 41, 2))
sketch2.addConstraint(Sketcher.Constraint("Vertical", 43, 2, 44, 2))
sketch2.addConstraint(Sketcher.Constraint("Vertical", 42, 2, 45, 2))
sketch2.addConstraint(Sketcher.Constraint("Equal", 3, 9))
sketch2.addConstraint(Sketcher.Constraint("Equal", 23, 25))
sketch2.addConstraint(Sketcher.Constraint("Equal", 35, 37))
sketch2.addConstraint(Sketcher.Constraint("Equal", 47, 0))
sketch2.addConstraint(Sketcher.Constraint("Equal", 6, 8))
sketch2.addConstraint(Sketcher.Constraint("Equal", 14, 16))
sketch2.addConstraint(Sketcher.Constraint("Equal", 34, 36))
sketch2.addConstraint(Sketcher.Constraint("Equal", 38, 40))
sketch2.addConstraint(Sketcher.Constraint("DistanceY", 33, 2, 36, 2, Q("2 in")))
sketch2.addConstraint(Sketcher.Constraint("DistanceY", 40, 2, 25, 2, Q("2 in")))
sketch2.addConstraint(Sketcher.Constraint("DistanceX", 32, 2, 36, 2, Q("5.5 in")))
sketch2.addConstraint(Sketcher.Constraint("DistanceX", 1, 1, 1, 2, Q("0.375 in")))
sketch2.addConstraint(Sketcher.Constraint("DistanceX", 1, 2, 5, 2, Q("6.4375 in")))
sketch2.addConstraint(Sketcher.Constraint("DistanceY", 5, 2, 8, 2, Q("6.8125 in")))
sketch2.addConstraint(Sketcher.Constraint("DistanceY", 12, 2, 16, 2, Q("7.3125 in")))
sketch2.addConstraint(Sketcher.Constraint("DistanceX", 21, 2, 24, 2, Q("5.9375 in")))
sketch2.addConstraint(Sketcher.Constraint("DistanceX", 5, 1, 5, 2, 3.258461))
sketch2.addConstraint(Sketcher.Constraint("DistanceX", 0, 2, -1, 1, 57.667241))
sketch2.addConstraint(Sketcher.Constraint("DistanceY", 0, 2, -1, 1, 300.487857))
pad2 = doc.addObject("PartDesign::Pad", "Pad001")
body.addObject(pad2)
pad2.Profile = sketch2
pad2.Length = Q("2.75 in")
pad2.Reversed = True

sketch3 = doc.addObject("Sketcher::SketchObject", "Sketch002")
body.addObject(sketch3)
sketch3.AttachmentSupport = (doc.XZ_Plane, [""])
sketch3.MapMode = "FlatFace"
sketch3.AttachmentOffset = App.Placement(V(0, 0, -3 * 25.4), App.Rotation())
sketch3.addGeometry(Part.LineSegment(V(-58, -310, 0), V(-58, 58, 0)), False)
sketch3.addGeometry(Part.LineSegment(V(-58, 58, 0), V(115, 58, 0)), False)
sketch3.addGeometry(Part.LineSegment(V(115, 58, 0), V(115, 49, 0)), False)
sketch3.addGeometry(Part.LineSegment(V(115, 49, 0), V(125, 49, 0)), False)
sketch3.addGeometry(Part.LineSegment(V(125, 49, 0), V(125, 58, 0)), False)
sketch3.addGeometry(Part.LineSegment(V(125, 58, 0), V(285, 58, 0)), False)
sketch3.addGeometry(Part.LineSegment(V(285, 58, 0), V(285, 7, 0)), False)
sketch3.addGeometry(Part.LineSegment(V(285, 7, 0), V(425, 7, 0)), False)
sketch3.addGeometry(Part.LineSegment(V(425, 7, 0), V(425, -259, 0)), False)
sketch3.addGeometry(Part.LineSegment(V(425, -259, 0), V(285, -259, 0)), False)
sketch3.addGeometry(Part.LineSegment(V(285, -259, 0), V(285, -310, 0)), False)
sketch3.addGeometry(Part.LineSegment(V(285, -310, 0), V(-58, -310, 0)), False)
sketch3.addGeometry(Part.Circle(V(29, -196, 0), V(0, 0, 1), 56), False)
sketch3.addGeometry(Part.Circle(V(29, -59, 0), V(0, 0, 1), 56), False)
sketch3.addGeometry(Part.Circle(V(200, -196, 0), V(0, 0, 1), 56), False)
sketch3.addGeometry(Part.Circle(V(200, -59, 0), V(0, 0, 1), 56), False)
sketch3.addGeometry(Part.Circle(V(353, -196, 0), V(0, 0, 1), 56), False)
sketch3.addGeometry(Part.Circle(V(353, -59, 0), V(0, 0, 1), 56), False)
sketch3.addConstraint(Sketcher.Constraint("Coincident", 0, 2, 1, 1))
sketch3.addConstraint(Sketcher.Constraint("Coincident", 1, 2, 2, 1))
sketch3.addConstraint(Sketcher.Constraint("Coincident", 2, 2, 3, 1))
sketch3.addConstraint(Sketcher.Constraint("Coincident", 3, 2, 4, 1))
sketch3.addConstraint(Sketcher.Constraint("Coincident", 4, 2, 5, 1))
sketch3.addConstraint(Sketcher.Constraint("Coincident", 5, 2, 6, 1))
sketch3.addConstraint(Sketcher.Constraint("Coincident", 6, 2, 7, 1))
sketch3.addConstraint(Sketcher.Constraint("Coincident", 7, 2, 8, 1))
sketch3.addConstraint(Sketcher.Constraint("Coincident", 8, 2, 9, 1))
sketch3.addConstraint(Sketcher.Constraint("Coincident", 9, 2, 10, 1))
sketch3.addConstraint(Sketcher.Constraint("Coincident", 10, 2, 11, 1))
sketch3.addConstraint(Sketcher.Constraint("Coincident", 11, 2, 0, 1))
sketch3.addConstraint(Sketcher.Constraint("Vertical", 0))
sketch3.addConstraint(Sketcher.Constraint("Horizontal", 1))
sketch3.addConstraint(Sketcher.Constraint("Vertical", 2))
sketch3.addConstraint(Sketcher.Constraint("Horizontal", 3))
sketch3.addConstraint(Sketcher.Constraint("Vertical", 4))
sketch3.addConstraint(Sketcher.Constraint("Horizontal", 5))
sketch3.addConstraint(Sketcher.Constraint("Vertical", 6))
sketch3.addConstraint(Sketcher.Constraint("Horizontal", 7))
sketch3.addConstraint(Sketcher.Constraint("Vertical", 8))
sketch3.addConstraint(Sketcher.Constraint("Horizontal", 9))
sketch3.addConstraint(Sketcher.Constraint("Vertical", 10))
sketch3.addConstraint(Sketcher.Constraint("Horizontal", 11))
sketch3.addConstraint(Sketcher.Constraint("Equal", 12, 13))
sketch3.addConstraint(Sketcher.Constraint("Equal", 13, 14))
sketch3.addConstraint(Sketcher.Constraint("Equal", 14, 15))
sketch3.addConstraint(Sketcher.Constraint("Equal", 15, 16))
sketch3.addConstraint(Sketcher.Constraint("Equal", 16, 17))
sketch3.addConstraint(Sketcher.Constraint("Horizontal", 12, 3, 14, 3))
sketch3.addConstraint(Sketcher.Constraint("Horizontal", 13, 3, 15, 3))
sketch3.addConstraint(Sketcher.Constraint("Horizontal", 14, 3, 16, 3))
sketch3.addConstraint(Sketcher.Constraint("Horizontal", 15, 3, 17, 3))
sketch3.addConstraint(Sketcher.Constraint("Horizontal", 1, 2, 4, 2))
sketch3.addConstraint(Sketcher.Constraint("Vertical", 12, 3, 13, 3))
sketch3.addConstraint(Sketcher.Constraint("Vertical", 14, 3, 15, 3))
sketch3.addConstraint(Sketcher.Constraint("Vertical", 16, 3, 17, 3))
sketch3.addConstraint(Sketcher.Constraint("Vertical", 6, 2, 9, 2))
sketch3.addConstraint(Sketcher.Constraint("Equal", 3, 2))
sketch3.addConstraint(Sketcher.Constraint("Equal", 6, 10))
sketch3.addConstraint(Sketcher.Constraint("Diameter", 12, Q("4.4 in")))
sketch3.addConstraint(Sketcher.Constraint("DistanceY", 6, 2, 6, 1, Q("2 in")))
sketch3.addConstraint(Sketcher.Constraint("DistanceX", 7, 1, 7, 2, Q("5.5 in")))
sketch3.addConstraint(Sketcher.Constraint("DistanceX", 11, 2, 11, 1, Q("13.5 in")))
sketch3.addConstraint(Sketcher.Constraint("DistanceY", 0, 1, 0, 2, Q("14.5 in")))
sketch3.addConstraint(Sketcher.Constraint("DistanceY", 12, 3, 0, 2, Q("10 in")))
sketch3.addConstraint(Sketcher.Constraint("DistanceX", 1, 1, 1, 2, Q("6.8125 in")))
sketch3.addConstraint(Sketcher.Constraint("DistanceX", 3, 1, 3, 2, Q("0.375 in")))
sketch3.addConstraint(Sketcher.Constraint("DistanceX", 0, 2, 17, 3, Q("16.15 in")))
sketch3.addConstraint(Sketcher.Constraint("DistanceX", 1, 2, 15, 3, Q("3.34 in")))
sketch3.addConstraint(Sketcher.Constraint("DistanceY", 15, 3, 2, 2, Q("4.25 in")))
sketch3.addConstraint(Sketcher.Constraint("DistanceX", 12, 3, 16, 3, Q("12.744 in")))
sketch3.addConstraint(Sketcher.Constraint("DistanceX", -1, 1, 12, 3, 28.845159))
sketch3.addConstraint(Sketcher.Constraint("DistanceY", 12, 3, -1, 1, 195.712857))
pad3 = doc.addObject("PartDesign::Pad", "Pad002")
body.addObject(pad3)
pad3.Profile = sketch3
pad3.Length = Q("0.5 in")
body2 = doc.addObject("PartDesign::Body", "Body001")

sketch4 = doc.addObject("Sketcher::SketchObject", "Sketch003")
body2.addObject(sketch4)
sketch4.AttachmentSupport = (doc.getObject("XY_Plane001"), [""])
sketch4.MapMode = "FlatFace"
sketch4.AttachmentOffset = App.Placement(V(0, 0, -259.212857), App.Rotation())
sketch4.addGeometry(Part.LineSegment(V(424.9, 76.2, 0), V(424.9, 73, 0)), False)
sketch4.addGeometry(Part.LineSegment(V(424.9, 73, 0), V(-57.3, 73, 0)), False)
sketch4.addGeometry(Part.LineSegment(V(-57.3, 73, 0), V(-57.3, 76.2, 0)), False)
sketch4.addGeometry(Part.LineSegment(V(-57.3, 76.2, 0), V(424.9, 76.2, 0)), False)
sketch4.addConstraint(Sketcher.Constraint("Coincident", 0, 2, 1, 1))
sketch4.addConstraint(Sketcher.Constraint("Coincident", 1, 2, 2, 1))
sketch4.addConstraint(Sketcher.Constraint("Coincident", 2, 2, 3, 1))
sketch4.addConstraint(Sketcher.Constraint("Coincident", 3, 2, 0, 1))
sketch4.addConstraint(Sketcher.Constraint("Vertical", 0))
sketch4.addConstraint(Sketcher.Constraint("Horizontal", 1))
sketch4.addConstraint(Sketcher.Constraint("Vertical", 2))
sketch4.addConstraint(Sketcher.Constraint("Horizontal", 3))
sketch4.addConstraint(Sketcher.Constraint("DistanceY", -1, 1, 2, 2, Q("3 in")))
sketch4.addConstraint(Sketcher.Constraint("DistanceY", 0, 2, 0, 1, Q("0.125 in")))
sketch4.addConstraint(Sketcher.Constraint("DistanceX", 1, 2, 1, 1, 482.237346))
sketch4.addConstraint(Sketcher.Constraint("DistanceX", -1, 1, 0, 2, 424.932759))
pad4 = doc.addObject("PartDesign::Pad", "Pad003")
body2.addObject(pad4)
pad4.Profile = sketch4
pad4.Length = Q("10.5 in")

doc.recompute()
